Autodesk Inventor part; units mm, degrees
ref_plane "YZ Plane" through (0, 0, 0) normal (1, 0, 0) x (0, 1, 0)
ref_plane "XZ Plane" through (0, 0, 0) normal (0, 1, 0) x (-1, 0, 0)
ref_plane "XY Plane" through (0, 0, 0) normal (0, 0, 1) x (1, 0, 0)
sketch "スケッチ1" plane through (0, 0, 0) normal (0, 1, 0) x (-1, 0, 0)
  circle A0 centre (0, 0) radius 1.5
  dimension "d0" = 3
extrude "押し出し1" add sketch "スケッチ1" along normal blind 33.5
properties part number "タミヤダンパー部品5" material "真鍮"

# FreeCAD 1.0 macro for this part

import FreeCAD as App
import Part
import Sketcher

V = App.Vector
Q = App.Units.Quantity

doc = App.newDocument("Part")
body = doc.addObject("PartDesign::Body", "Body")

# Sketch on XZ plane
sketch1 = doc.addObject("Sketcher::SketchObject", "Sketch")
body.addObject(sketch1)
sketch1.AttachmentSupport = (doc.XZ_Plane, [""])
sketch1.MapMode = "FlatFace"
sketch1.addGeometry(Part.Circle(V(0, 0, 0), V(0, 0, 1), 1.5), False)
sketch1.addConstraint([
    Sketcher.Constraint("Coincident", 0, 3, -1, 1),
    Sketcher.Constraint("Diameter", 0, Q("3 mm")),
])
pad1 = doc.addObject("PartDesign::Pad", "Pad")
body.addObject(pad1)
pad1.Profile = sketch1
pad1.Length = 33.5
pad1.Reversed = True

doc.recompute()
